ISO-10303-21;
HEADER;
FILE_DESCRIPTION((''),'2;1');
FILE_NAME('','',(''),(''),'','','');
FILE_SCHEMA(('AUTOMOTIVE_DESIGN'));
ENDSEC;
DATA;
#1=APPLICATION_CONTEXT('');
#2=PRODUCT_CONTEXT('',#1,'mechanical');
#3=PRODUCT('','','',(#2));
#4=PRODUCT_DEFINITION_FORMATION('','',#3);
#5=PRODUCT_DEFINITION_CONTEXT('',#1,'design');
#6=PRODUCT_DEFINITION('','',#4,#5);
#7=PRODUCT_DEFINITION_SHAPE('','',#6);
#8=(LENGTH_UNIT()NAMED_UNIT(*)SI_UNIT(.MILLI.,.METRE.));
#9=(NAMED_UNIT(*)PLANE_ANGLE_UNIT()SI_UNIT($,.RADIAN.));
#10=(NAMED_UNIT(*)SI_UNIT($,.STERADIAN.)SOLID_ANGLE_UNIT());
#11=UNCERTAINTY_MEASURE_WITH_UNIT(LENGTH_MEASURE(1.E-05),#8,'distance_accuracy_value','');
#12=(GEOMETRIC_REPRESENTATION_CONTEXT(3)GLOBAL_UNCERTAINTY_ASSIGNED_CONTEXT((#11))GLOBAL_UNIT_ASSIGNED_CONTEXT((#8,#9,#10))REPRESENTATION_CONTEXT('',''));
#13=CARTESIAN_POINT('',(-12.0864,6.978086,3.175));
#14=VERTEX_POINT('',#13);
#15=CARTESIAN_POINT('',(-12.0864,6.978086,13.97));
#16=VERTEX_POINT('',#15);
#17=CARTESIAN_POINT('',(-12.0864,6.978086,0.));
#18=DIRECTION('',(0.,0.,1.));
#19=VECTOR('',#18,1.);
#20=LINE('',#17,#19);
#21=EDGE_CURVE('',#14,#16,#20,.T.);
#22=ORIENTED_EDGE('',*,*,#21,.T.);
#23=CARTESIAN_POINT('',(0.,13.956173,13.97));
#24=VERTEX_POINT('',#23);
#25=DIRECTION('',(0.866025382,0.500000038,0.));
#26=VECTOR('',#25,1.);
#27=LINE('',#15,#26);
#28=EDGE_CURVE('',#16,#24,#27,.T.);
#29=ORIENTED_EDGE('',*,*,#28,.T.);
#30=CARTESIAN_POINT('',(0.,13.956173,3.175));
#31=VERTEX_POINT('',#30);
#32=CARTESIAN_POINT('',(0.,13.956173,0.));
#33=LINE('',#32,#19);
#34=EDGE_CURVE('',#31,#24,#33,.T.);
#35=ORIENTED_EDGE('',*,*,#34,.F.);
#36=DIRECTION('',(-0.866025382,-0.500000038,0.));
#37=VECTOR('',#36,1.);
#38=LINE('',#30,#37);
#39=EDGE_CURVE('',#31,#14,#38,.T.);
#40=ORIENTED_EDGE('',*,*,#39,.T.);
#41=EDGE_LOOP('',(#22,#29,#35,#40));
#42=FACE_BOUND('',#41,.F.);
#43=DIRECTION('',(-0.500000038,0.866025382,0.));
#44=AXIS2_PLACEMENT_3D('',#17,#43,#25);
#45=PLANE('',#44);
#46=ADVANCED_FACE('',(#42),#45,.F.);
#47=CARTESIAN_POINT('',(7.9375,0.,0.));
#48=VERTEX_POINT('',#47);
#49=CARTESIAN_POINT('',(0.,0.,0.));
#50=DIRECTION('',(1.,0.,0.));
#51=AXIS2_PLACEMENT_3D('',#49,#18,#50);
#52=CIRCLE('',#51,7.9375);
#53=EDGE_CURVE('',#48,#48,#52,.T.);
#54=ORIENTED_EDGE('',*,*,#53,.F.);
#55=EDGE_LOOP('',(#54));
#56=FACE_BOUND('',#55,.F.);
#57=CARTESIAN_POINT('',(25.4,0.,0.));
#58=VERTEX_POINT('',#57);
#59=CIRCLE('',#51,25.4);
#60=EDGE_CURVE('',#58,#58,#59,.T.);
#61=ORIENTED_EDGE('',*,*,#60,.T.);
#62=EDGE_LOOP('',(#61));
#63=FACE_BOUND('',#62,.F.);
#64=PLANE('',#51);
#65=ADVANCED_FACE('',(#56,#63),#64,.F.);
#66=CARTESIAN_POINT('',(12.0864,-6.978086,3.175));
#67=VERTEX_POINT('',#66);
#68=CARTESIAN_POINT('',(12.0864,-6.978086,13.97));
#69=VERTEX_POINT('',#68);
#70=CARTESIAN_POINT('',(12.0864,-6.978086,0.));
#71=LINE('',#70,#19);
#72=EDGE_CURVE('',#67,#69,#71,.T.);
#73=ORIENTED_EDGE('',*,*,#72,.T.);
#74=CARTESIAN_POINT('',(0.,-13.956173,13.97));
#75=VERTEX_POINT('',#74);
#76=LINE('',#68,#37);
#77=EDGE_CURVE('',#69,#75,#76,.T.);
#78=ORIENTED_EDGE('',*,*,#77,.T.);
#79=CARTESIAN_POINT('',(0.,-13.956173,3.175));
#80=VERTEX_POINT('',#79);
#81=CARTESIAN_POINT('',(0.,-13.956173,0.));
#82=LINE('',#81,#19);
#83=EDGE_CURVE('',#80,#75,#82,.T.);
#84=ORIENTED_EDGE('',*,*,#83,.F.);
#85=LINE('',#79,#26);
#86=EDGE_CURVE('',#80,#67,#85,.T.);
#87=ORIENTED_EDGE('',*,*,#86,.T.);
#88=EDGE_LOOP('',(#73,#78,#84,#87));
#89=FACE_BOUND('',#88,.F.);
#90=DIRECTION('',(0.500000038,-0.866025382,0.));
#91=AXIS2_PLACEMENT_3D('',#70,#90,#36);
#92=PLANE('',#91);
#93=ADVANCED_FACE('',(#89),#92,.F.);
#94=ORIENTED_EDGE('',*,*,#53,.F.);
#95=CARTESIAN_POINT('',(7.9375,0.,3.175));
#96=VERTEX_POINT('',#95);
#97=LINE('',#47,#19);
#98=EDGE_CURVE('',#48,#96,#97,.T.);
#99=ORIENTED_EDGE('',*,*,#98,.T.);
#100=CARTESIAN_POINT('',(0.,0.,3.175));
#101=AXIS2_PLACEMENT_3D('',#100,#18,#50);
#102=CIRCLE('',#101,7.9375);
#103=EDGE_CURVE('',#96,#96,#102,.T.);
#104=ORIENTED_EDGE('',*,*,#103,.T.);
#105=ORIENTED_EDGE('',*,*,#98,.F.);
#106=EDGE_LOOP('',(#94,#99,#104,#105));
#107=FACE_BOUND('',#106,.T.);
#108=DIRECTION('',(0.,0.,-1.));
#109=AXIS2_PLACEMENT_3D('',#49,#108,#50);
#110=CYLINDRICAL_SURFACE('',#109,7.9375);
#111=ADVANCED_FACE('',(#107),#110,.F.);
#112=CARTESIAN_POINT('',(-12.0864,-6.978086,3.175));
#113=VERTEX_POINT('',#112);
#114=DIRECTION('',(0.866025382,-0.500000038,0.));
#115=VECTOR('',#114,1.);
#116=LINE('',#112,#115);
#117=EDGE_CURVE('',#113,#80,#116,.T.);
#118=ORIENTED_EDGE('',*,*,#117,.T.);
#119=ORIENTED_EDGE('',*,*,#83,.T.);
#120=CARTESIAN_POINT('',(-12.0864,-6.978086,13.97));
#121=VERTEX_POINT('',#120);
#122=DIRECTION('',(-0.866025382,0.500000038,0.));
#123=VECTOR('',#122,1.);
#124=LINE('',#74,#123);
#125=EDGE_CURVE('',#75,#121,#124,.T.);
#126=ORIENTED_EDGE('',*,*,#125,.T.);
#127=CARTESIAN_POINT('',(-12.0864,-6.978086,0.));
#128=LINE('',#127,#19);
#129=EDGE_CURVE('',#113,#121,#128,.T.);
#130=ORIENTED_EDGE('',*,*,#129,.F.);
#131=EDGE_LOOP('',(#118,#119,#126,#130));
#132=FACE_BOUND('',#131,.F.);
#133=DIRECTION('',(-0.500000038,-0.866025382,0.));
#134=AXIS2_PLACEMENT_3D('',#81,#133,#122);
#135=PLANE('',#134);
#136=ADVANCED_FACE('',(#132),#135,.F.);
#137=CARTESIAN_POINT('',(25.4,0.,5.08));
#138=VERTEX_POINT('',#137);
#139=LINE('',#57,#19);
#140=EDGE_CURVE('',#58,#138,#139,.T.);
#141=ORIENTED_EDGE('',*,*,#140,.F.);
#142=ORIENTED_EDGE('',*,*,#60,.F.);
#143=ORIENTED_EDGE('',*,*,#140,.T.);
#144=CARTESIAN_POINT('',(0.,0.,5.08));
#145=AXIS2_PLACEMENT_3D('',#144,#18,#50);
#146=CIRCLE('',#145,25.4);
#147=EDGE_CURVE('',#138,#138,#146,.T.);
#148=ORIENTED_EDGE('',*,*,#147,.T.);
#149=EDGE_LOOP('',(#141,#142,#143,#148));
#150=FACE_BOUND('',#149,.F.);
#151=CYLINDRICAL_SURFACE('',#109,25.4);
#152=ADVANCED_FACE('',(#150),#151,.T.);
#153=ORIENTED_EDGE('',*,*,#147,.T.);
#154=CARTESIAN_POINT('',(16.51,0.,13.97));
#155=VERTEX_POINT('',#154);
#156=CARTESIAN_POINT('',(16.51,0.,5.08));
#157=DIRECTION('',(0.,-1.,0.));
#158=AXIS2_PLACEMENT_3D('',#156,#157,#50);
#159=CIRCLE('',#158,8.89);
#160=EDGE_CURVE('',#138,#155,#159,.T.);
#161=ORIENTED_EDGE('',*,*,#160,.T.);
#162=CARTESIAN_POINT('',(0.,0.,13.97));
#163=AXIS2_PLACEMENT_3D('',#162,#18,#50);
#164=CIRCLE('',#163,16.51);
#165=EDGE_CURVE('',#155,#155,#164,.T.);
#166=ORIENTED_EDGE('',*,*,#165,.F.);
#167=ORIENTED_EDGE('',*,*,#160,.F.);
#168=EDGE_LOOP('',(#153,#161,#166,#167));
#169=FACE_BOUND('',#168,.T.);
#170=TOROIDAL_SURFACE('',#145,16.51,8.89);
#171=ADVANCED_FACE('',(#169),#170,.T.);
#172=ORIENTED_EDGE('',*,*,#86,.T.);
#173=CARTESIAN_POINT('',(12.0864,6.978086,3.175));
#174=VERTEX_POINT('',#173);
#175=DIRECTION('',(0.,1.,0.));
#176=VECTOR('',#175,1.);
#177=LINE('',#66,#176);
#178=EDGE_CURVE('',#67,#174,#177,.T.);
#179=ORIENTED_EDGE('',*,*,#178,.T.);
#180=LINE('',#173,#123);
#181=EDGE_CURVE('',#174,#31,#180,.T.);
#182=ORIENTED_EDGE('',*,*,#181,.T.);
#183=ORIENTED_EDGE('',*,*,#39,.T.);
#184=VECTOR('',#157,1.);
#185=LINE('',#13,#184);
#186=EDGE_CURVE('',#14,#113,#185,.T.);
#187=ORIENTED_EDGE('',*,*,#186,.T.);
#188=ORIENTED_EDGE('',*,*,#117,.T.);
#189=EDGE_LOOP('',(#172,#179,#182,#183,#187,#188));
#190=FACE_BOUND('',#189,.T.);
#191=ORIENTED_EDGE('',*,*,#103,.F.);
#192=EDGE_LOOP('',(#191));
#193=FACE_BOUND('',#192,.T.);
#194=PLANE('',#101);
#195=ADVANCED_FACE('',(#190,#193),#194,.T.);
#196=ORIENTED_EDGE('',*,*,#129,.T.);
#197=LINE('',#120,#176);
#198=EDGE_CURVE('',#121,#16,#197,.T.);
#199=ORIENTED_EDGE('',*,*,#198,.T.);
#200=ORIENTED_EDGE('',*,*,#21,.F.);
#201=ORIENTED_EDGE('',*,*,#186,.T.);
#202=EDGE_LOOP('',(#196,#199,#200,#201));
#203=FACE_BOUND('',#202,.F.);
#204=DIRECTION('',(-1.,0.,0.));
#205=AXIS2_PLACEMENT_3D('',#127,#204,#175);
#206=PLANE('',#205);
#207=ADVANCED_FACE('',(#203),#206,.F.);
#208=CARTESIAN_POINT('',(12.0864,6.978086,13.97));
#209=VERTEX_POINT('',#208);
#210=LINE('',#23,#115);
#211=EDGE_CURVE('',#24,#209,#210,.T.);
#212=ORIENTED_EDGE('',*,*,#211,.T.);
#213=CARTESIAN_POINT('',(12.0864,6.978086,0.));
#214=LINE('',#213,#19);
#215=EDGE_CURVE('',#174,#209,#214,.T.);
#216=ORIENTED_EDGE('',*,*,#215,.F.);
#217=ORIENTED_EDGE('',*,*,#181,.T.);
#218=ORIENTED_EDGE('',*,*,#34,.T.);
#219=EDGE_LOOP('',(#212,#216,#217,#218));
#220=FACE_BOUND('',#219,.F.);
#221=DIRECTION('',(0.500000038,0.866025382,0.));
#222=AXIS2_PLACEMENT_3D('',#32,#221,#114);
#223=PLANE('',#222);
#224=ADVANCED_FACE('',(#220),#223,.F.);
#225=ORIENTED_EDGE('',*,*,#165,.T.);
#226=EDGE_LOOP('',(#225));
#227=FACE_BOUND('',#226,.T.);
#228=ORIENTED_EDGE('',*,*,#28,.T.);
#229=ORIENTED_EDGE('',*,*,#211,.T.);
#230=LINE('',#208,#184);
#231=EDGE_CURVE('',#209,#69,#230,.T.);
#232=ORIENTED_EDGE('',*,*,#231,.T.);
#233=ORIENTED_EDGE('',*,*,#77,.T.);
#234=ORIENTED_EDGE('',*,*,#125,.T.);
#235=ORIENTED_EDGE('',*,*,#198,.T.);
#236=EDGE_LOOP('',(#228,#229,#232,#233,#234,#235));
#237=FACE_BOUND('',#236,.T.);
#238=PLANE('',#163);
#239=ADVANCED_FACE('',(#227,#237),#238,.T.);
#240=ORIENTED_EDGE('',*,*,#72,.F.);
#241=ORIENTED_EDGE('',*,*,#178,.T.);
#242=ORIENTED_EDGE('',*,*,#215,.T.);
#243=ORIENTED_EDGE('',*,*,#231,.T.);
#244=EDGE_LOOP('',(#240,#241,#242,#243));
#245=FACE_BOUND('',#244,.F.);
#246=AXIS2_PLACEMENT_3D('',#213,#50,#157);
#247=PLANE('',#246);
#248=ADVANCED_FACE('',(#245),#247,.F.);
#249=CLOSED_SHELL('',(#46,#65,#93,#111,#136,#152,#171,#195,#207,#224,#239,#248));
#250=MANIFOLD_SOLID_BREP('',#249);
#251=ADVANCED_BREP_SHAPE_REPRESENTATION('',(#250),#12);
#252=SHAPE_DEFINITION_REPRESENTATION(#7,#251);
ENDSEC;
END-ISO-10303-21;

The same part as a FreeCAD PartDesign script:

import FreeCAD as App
import Part
import Sketcher
Q = App.Units.Quantity


def edges_at(feature, points):
    """Names of the edges that pass closest to the given points."""
    edges = feature.Shape.Edges
    near = lambda p: min(range(len(edges)), key=lambda i: edges[i].distToShape(Part.Vertex(*p))[0])
    return sorted({f"Edge{near(p) + 1}" for p in points})


def add_polygon(sketch, points):
    """Adds a closed chain of lines whose ends are joined by coincident constraints."""
    first, n = sketch.GeometryCount, len(points)
    for a, b in zip(points, points[1:] + points[:1]):
        sketch.addGeometry(Part.LineSegment(App.Vector(*a, 0), App.Vector(*b, 0)), False)
    for i in range(n):
        sketch.addConstraint(Sketcher.Constraint("Coincident", first + i, 2, first + (i + 1) % n, 1))

doc = App.newDocument("Part")
body = doc.addObject("PartDesign::Body", "Body")

# Sketch on XY plane
sketch1 = doc.addObject("Sketcher::SketchObject", "Sketch")
body.addObject(sketch1)
sketch1.AttachmentSupport = (doc.XY_Plane, [""])
sketch1.MapMode = "FlatFace"
sketch1.addGeometry(Part.Circle(App.Vector(0, 0, 0), App.Vector(0, 0, 1), 25), False)  # 0
add_polygon(sketch1, [(-12, 7), (0, 14), (12, 7), (12, -7), (0, -14), (-12, -7)])  # lines 1-6
sketch1.addConstraint([
    Sketcher.Constraint("Vertical", 3),
    Sketcher.Constraint("Vertical", 6),
    Sketcher.Constraint("Coincident", 0, 3, -1, 1),
    Sketcher.Constraint("Symmetric", 1, 2, 4, 2, -1, 1),
    Sketcher.Constraint("Symmetric", 2, 2, 5, 2, -1, 1),
    Sketcher.Constraint("PointOnObject", 1, 2, -2),
    Sketcher.Constraint("Parallel", 1, 4),
    Sketcher.Constraint("Horizontal", 3, 2, 5, 2),
    Sketcher.Constraint("Diameter", 0, Q("2 in")),
    Sketcher.Constraint("Angle", 1, Q("30.000003 deg")),
    Sketcher.Constraint("DistanceX", -1, 1, 2, 2, Q("12.0864 mm")),
    Sketcher.Constraint("DistanceY", 3, 2, 3, 1, Q("13.956172 mm")),
])
pad1 = doc.addObject("PartDesign::Pad", "Pad")
body.addObject(pad1)
pad1.Profile = sketch1
pad1.Length = Q("0.55 in")

# Sketch on XY plane
sketch2 = doc.addObject("Sketcher::SketchObject", "Sketch001")
body.addObject(sketch2)
sketch2.AttachmentSupport = (doc.XY_Plane, [""])
sketch2.MapMode = "FlatFace"
add_polygon(sketch2, [(12, -7), (12, 7), (0, 14), (-12, 7), (-12, -7), (0, -14)])  # lines 0-5
sketch2.addGeometry(Part.Circle(App.Vector(0, 0, 0), App.Vector(0, 0, 1), 8), False)  # 6
sketch2.addConstraint([
    Sketcher.Constraint("Vertical", 0),
    Sketcher.Constraint("Vertical", 3),
    Sketcher.Constraint("Coincident", 6, 3, -1, 1),
    Sketcher.Constraint("Symmetric", 0, 2, 3, 2, -1, 1),
    Sketcher.Constraint("Symmetric", 1, 2, 4, 2, -1, 1),
    Sketcher.Constraint("PointOnObject", 1, 2, -2),
    Sketcher.Constraint("Parallel", 2, 5),
    Sketcher.Constraint("Horizontal", 0, 2, 2, 2),
    Sketcher.Constraint("Diameter", 6, Q("0.625 in")),
    Sketcher.Constraint("Angle", 1, Q("149.999997 deg")),
    Sketcher.Constraint("DistanceX", -1, 1, 0, 2, Q("12.0864 mm")),
    Sketcher.Constraint("DistanceY", 0, 1, 0, 2, Q("13.956172 mm")),
])
pad2 = doc.addObject("PartDesign::Pad", "Pad001")
body.addObject(pad2)
pad2.Profile = sketch2
pad2.Length = Q("0.125 in")
doc.recompute()

fillet = doc.addObject("PartDesign::Fillet", "Fillet")
body.addObject(fillet)
fillet.Base = (pad2, edges_at(pad2, [(-25.4, 0, 13.97)]))
fillet.Radius = Q("0.35 in")

doc.recompute()
